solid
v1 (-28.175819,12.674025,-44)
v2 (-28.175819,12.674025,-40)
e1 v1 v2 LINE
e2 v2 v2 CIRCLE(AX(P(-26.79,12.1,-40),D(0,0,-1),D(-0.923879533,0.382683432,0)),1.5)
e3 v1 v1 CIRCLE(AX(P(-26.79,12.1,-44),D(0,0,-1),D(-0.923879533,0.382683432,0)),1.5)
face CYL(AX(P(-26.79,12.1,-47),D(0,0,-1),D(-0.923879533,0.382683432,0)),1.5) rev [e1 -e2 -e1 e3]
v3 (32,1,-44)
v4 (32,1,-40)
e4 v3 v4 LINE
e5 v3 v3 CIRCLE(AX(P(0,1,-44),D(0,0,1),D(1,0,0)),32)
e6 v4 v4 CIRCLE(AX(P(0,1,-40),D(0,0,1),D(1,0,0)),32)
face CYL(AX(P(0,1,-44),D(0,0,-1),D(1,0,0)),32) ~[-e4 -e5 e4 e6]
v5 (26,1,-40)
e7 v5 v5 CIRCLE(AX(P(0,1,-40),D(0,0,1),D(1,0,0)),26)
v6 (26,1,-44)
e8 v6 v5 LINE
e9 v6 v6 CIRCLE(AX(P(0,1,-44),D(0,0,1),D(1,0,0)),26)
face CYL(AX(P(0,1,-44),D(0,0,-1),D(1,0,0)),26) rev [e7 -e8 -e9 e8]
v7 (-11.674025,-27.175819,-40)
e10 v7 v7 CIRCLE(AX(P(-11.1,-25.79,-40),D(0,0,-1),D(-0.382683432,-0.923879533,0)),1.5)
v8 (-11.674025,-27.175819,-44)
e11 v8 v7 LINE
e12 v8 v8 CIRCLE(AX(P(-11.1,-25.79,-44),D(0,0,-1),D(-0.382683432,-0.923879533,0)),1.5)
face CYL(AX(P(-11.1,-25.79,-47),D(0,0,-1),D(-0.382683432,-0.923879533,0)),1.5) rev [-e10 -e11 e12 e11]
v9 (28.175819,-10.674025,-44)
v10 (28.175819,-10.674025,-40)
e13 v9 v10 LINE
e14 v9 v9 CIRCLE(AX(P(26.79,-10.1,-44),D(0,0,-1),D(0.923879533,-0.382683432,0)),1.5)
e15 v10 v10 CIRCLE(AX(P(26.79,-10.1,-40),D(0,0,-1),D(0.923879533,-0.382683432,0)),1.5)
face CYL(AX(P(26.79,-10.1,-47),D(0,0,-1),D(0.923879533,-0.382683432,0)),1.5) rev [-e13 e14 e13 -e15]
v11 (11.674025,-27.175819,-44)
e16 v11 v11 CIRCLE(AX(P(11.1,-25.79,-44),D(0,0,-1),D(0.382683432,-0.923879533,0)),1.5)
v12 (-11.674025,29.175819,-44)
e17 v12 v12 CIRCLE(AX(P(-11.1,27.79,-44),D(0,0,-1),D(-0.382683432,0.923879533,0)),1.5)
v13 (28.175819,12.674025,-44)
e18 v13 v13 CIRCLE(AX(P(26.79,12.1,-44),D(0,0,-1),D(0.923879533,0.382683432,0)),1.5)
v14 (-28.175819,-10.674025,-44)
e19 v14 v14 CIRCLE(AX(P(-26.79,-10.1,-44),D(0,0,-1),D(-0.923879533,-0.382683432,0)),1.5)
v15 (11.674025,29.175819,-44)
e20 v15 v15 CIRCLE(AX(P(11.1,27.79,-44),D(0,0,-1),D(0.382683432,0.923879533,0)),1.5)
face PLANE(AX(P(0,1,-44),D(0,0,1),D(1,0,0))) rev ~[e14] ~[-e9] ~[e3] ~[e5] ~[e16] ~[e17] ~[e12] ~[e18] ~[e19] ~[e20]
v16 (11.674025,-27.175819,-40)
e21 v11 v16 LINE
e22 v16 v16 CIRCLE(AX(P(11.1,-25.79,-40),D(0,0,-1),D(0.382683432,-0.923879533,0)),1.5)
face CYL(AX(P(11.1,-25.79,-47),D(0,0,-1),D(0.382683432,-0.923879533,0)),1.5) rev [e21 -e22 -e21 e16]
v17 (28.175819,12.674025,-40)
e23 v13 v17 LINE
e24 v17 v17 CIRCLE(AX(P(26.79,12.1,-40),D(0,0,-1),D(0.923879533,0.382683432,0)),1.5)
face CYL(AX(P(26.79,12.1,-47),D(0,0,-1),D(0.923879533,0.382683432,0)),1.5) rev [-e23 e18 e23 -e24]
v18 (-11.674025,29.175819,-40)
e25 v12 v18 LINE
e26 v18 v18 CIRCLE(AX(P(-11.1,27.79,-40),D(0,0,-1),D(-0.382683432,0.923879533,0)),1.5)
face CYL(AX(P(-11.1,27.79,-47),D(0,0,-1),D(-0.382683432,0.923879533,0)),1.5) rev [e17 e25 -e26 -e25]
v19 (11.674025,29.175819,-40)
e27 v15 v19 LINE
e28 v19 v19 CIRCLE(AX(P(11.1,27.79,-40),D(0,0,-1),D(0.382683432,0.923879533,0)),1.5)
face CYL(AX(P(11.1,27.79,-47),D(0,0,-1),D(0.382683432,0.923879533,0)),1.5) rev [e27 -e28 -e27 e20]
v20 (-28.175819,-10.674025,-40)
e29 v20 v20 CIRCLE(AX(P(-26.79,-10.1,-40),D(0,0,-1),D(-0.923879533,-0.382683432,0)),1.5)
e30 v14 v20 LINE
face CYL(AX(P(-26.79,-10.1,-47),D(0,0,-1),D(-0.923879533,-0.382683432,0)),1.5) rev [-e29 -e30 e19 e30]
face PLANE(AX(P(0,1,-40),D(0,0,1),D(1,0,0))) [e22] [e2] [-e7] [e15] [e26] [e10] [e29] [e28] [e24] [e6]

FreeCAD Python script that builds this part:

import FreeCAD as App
import Part
import Sketcher
from FreeCAD import Vector

doc = App.newDocument("Part")
body = doc.addObject("PartDesign::Body", "Body")

# Sketch on XY plane
sketch1 = body.newObject("Sketcher::SketchObject", "Sketch")
sketch1.AttachmentSupport = (doc.getObject("XY_Plane"), [""])
sketch1.MapMode = "FlatFace"
sketch1.addGeometry(Part.Circle(Vector(0, 0, 0), Vector(0, 0, 1), 3), False)
sketch1.addConstraint([
    Sketcher.Constraint("Coincident", 0, 3, -1, 1),
    Sketcher.Constraint("Diameter", 0, 6.0),
])
pad1 = body.newObject("PartDesign::Pad", "Pad")
pad1.Profile = sketch1
pad1.Length = 3
body2 = doc.addObject("PartDesign::Body", "Body001")
doc.recompute()

body.Placement = App.Placement(Vector(11.1, 26.79, -50), App.Rotation(Vector(0, 0, 1), 67.5))
boolean = body2.newObject("PartDesign::Boolean", "Boolean")
boolean.Type = "Fuse"
boolean.addObjects([body])
body3 = doc.addObject("PartDesign::Body", "Body002")

# Sketch on XY plane
sketch2 = body3.newObject("Sketcher::SketchObject", "Sketch001")
sketch2.AttachmentSupport = (doc.getObject("XY_Plane002"), [""])
sketch2.MapMode = "FlatFace"
sketch2.addGeometry(Part.Circle(Vector(0, 0, 0), Vector(0, 0, 1), 3), False)
sketch2.addConstraint([
    Sketcher.Constraint("Coincident", 0, 3, -1, 1),
    Sketcher.Constraint("Diameter", 0, 6.0),
])
pad2 = body3.newObject("PartDesign::Pad", "Pad001")
pad2.Profile = sketch2
pad2.Length = 3
body4 = doc.addObject("PartDesign::Body", "Body003")
doc.recompute()

body3.Placement = App.Placement(Vector(-11.1, 26.79, -50), App.Rotation(Vector(0, 0, 1), 112.5))
boolean2 = body4.newObject("PartDesign::Boolean", "Boolean001")
boolean2.Type = "Fuse"
boolean2.addObjects([body3])
body5 = doc.addObject("PartDesign::Body", "Body004")

# Sketch on XY plane
sketch3 = body5.newObject("Sketcher::SketchObject", "Sketch002")
sketch3.AttachmentSupport = (doc.getObject("XY_Plane004"), [""])
sketch3.MapMode = "FlatFace"
sketch3.addGeometry(Part.Circle(Vector(0, 0, 0), Vector(0, 0, 1), 3), False)
sketch3.addConstraint([
    Sketcher.Constraint("Coincident", 0, 3, -1, 1),
    Sketcher.Constraint("Diameter", 0, 6.0),
])
pad3 = body5.newObject("PartDesign::Pad", "Pad002")
pad3.Profile = sketch3
pad3.Length = 3
body6 = doc.addObject("PartDesign::Body", "Body005")
doc.recompute()

body5.Placement = App.Placement(Vector(-26.79, 11.1, -50), App.Rotation(Vector(0, 0, 1), 157.5))
boolean3 = body6.newObject("PartDesign::Boolean", "Boolean002")
boolean3.Type = "Fuse"
boolean3.addObjects([body5])
body7 = doc.addObject("PartDesign::Body", "Body006")

# Sketch on XY plane
sketch4 = body7.newObject("Sketcher::SketchObject", "Sketch003")
sketch4.AttachmentSupport = (doc.getObject("XY_Plane006"), [""])
sketch4.MapMode = "FlatFace"
sketch4.addGeometry(Part.Circle(Vector(0, 0, 0), Vector(0, 0, 1), 3), False)
sketch4.addConstraint([
    Sketcher.Constraint("Coincident", 0, 3, -1, 1),
    Sketcher.Constraint("Diameter", 0, 6.0),
])
pad4 = body7.newObject("PartDesign::Pad", "Pad003")
pad4.Profile = sketch4
pad4.Length = 3
body8 = doc.addObject("PartDesign::Body", "Body007")
doc.recompute()

body7.Placement = App.Placement(Vector(-26.79, -11.1, -50), App.Rotation(Vector(0, 0, 1), 202.5))
boolean4 = body8.newObject("PartDesign::Boolean", "Boolean003")
boolean4.Type = "Fuse"
boolean4.addObjects([body7])
body9 = doc.addObject("PartDesign::Body", "Body008")

# Sketch on XY plane
sketch5 = body9.newObject("Sketcher::SketchObject", "Sketch004")
sketch5.AttachmentSupport = (doc.getObject("XY_Plane008"), [""])
sketch5.MapMode = "FlatFace"
sketch5.addGeometry(Part.Circle(Vector(0, 0, 0), Vector(0, 0, 1), 3), False)
sketch5.addConstraint([
    Sketcher.Constraint("Coincident", 0, 3, -1, 1),
    Sketcher.Constraint("Diameter", 0, 6.0),
])
pad5 = body9.newObject("PartDesign::Pad", "Pad004")
pad5.Profile = sketch5
pad5.Length = 3
body10 = doc.addObject("PartDesign::Body", "Body009")
doc.recompute()

body9.Placement = App.Placement(Vector(-11.1, -26.79, -50), App.Rotation(Vector(0, 0, -1), 112.5))
boolean5 = body10.newObject("PartDesign::Boolean", "Boolean004")
boolean5.Type = "Fuse"
boolean5.addObjects([body9])
body11 = doc.addObject("PartDesign::Body", "Body010")

# Sketch on XY plane
sketch6 = body11.newObject("Sketcher::SketchObject", "Sketch005")
sketch6.AttachmentSupport = (doc.getObject("XY_Plane010"), [""])
sketch6.MapMode = "FlatFace"
sketch6.addGeometry(Part.Circle(Vector(0, 0, 0), Vector(0, 0, 1), 3), False)
sketch6.addConstraint([
    Sketcher.Constraint("Coincident", 0, 3, -1, 1),
    Sketcher.Constraint("Diameter", 0, 6.0),
])
pad6 = body11.newObject("PartDesign::Pad", "Pad005")
pad6.Profile = sketch6
pad6.Length = 3
body12 = doc.addObject("PartDesign::Body", "Body011")
doc.recompute()

body11.Placement = App.Placement(Vector(11.1, -26.79, -50), App.Rotation(Vector(0, 0, -1), 67.5))
boolean6 = body12.newObject("PartDesign::Boolean", "Boolean005")
boolean6.Type = "Fuse"
boolean6.addObjects([body11])
body13 = doc.addObject("PartDesign::Body", "Body012")

# Sketch on XY plane
sketch7 = body13.newObject("Sketcher::SketchObject", "Sketch006")
sketch7.AttachmentSupport = (doc.getObject("XY_Plane012"), [""])
sketch7.MapMode = "FlatFace"
sketch7.addGeometry(Part.Circle(Vector(0, 0, 0), Vector(0, 0, 1), 3), False)
sketch7.addConstraint([
    Sketcher.Constraint("Coincident", 0, 3, -1, 1),
    Sketcher.Constraint("Diameter", 0, 6.0),
])
pad7 = body13.newObject("PartDesign::Pad", "Pad006")
pad7.Profile = sketch7
pad7.Length = 3
body14 = doc.addObject("PartDesign::Body", "Body013")
doc.recompute()

body13.Placement = App.Placement(Vector(26.79, -11.1, -50), App.Rotation(Vector(0, 0, -1), 22.5))
boolean7 = body14.newObject("PartDesign::Boolean", "Boolean006")
boolean7.Type = "Fuse"
boolean7.addObjects([body13])
body15 = doc.addObject("PartDesign::Body", "Body014")

# Sketch on XY plane
sketch8 = body15.newObject("Sketcher::SketchObject", "Sketch007")
sketch8.AttachmentSupport = (doc.getObject("XY_Plane014"), [""])
sketch8.MapMode = "FlatFace"
sketch8.addGeometry(Part.Circle(Vector(0, 0, 0), Vector(0, 0, 1), 3), False)
sketch8.addConstraint([
    Sketcher.Constraint("Coincident", 0, 3, -1, 1),
    Sketcher.Constraint("Diameter", 0, 6.0),
])
pad8 = body15.newObject("PartDesign::Pad", "Pad007")
pad8.Profile = sketch8
pad8.Length = 3
body16 = doc.addObject("PartDesign::Body", "Body015")
body16.AllowCompound = True
doc.recompute()

body15.Placement = App.Placement(Vector(26.79, 11.1, -50), App.Rotation(Vector(0, 0, 1), 22.5))
boolean8 = body16.newObject("PartDesign::Boolean", "Boolean007")
boolean8.Type = "Fuse"
boolean8.addObjects([body15])
doc.recompute()

boolean9 = body16.newObject("PartDesign::Boolean", "Boolean008")
boolean9.Type = "Fuse"
boolean9.addObjects([body2])
doc.recompute()

boolean10 = body16.newObject("PartDesign::Boolean", "Boolean009")
boolean10.Type = "Fuse"
boolean10.addObjects([body4])
doc.recompute()

boolean11 = body16.newObject("PartDesign::Boolean", "Boolean010")
boolean11.Type = "Fuse"
boolean11.addObjects([body6])
doc.recompute()

boolean12 = body16.newObject("PartDesign::Boolean", "Boolean011")
boolean12.Type = "Fuse"
boolean12.addObjects([body8])
doc.recompute()

boolean13 = body16.newObject("PartDesign::Boolean", "Boolean012")
boolean13.Type = "Fuse"
boolean13.addObjects([body10])
doc.recompute()

boolean14 = body16.newObject("PartDesign::Boolean", "Boolean013")
boolean14.Type = "Fuse"
boolean14.addObjects([body12])
doc.recompute()

boolean15 = body16.newObject("PartDesign::Boolean", "Boolean014")
boolean15.Type = "Fuse"
boolean15.addObjects([body14])
body17 = doc.addObject("PartDesign::Body", "Body016")

# Sketch on XY plane
sketch9 = body17.newObject("Sketcher::SketchObject", "Sketch008")
sketch9.AttachmentSupport = (doc.getObject("XY_Plane016"), [""])
sketch9.MapMode = "FlatFace"
sketch9.addGeometry(Part.Circle(Vector(0, 0, 0), Vector(0, 0, 1), 1.5), False)
sketch9.addConstraint([
    Sketcher.Constraint("Coincident", 0, 3, -1, 1),
    Sketcher.Constraint("Diameter", 0, 3.0),
])
pad9 = body17.newObject("PartDesign::Pad", "Pad008")
pad9.Profile = sketch9
pad9.Length = 20
body18 = doc.addObject("PartDesign::Body", "Body017")
doc.recompute()

body17.Placement = App.Placement(Vector(11.1, 26.79, -50), App.Rotation(Vector(0, 0, 1), 67.5))
boolean16 = body18.newObject("PartDesign::Boolean", "Boolean015")
boolean16.Type = "Fuse"
boolean16.addObjects([body17])
body19 = doc.addObject("PartDesign::Body", "Body018")

# Sketch on XY plane
sketch10 = body19.newObject("Sketcher::SketchObject", "Sketch009")
sketch10.AttachmentSupport = (doc.getObject("XY_Plane018"), [""])
sketch10.MapMode = "FlatFace"
sketch10.addGeometry(Part.Circle(Vector(0, 0, 0), Vector(0, 0, 1), 1.5), False)
sketch10.addConstraint([
    Sketcher.Constraint("Coincident", 0, 3, -1, 1),
    Sketcher.Constraint("Diameter", 0, 3.0),
])
pad10 = body19.newObject("PartDesign::Pad", "Pad009")
pad10.Profile = sketch10
pad10.Length = 20
body20 = doc.addObject("PartDesign::Body", "Body019")
doc.recompute()

body19.Placement = App.Placement(Vector(-11.1, 26.79, -50), App.Rotation(Vector(0, 0, 1), 112.5))
boolean17 = body20.newObject("PartDesign::Boolean", "Boolean016")
boolean17.Type = "Fuse"
boolean17.addObjects([body19])
body21 = doc.addObject("PartDesign::Body", "Body020")

# Sketch on XY plane
sketch11 = body21.newObject("Sketcher::SketchObject", "Sketch010")
sketch11.AttachmentSupport = (doc.getObject("XY_Plane020"), [""])
sketch11.MapMode = "FlatFace"
sketch11.addGeometry(Part.Circle(Vector(0, 0, 0), Vector(0, 0, 1), 1.5), False)
sketch11.addConstraint([
    Sketcher.Constraint("Coincident", 0, 3, -1, 1),
    Sketcher.Constraint("Diameter", 0, 3.0),
])
pad11 = body21.newObject("PartDesign::Pad", "Pad010")
pad11.Profile = sketch11
pad11.Length = 20
body22 = doc.addObject("PartDesign::Body", "Body021")
doc.recompute()

body21.Placement = App.Placement(Vector(-26.79, 11.1, -50), App.Rotation(Vector(0, 0, 1), 157.5))
boolean18 = body22.newObject("PartDesign::Boolean", "Boolean017")
boolean18.Type = "Fuse"
boolean18.addObjects([body21])
body23 = doc.addObject("PartDesign::Body", "Body022")

# Sketch on XY plane
sketch12 = body23.newObject("Sketcher::SketchObject", "Sketch011")
sketch12.AttachmentSupport = (doc.getObject("XY_Plane022"), [""])
sketch12.MapMode = "FlatFace"
sketch12.addGeometry(Part.Circle(Vector(0, 0, 0), Vector(0, 0, 1), 1.5), False)
sketch12.addConstraint([
    Sketcher.Constraint("Coincident", 0, 3, -1, 1),
    Sketcher.Constraint("Diameter", 0, 3.0),
])
pad12 = body23.newObject("PartDesign::Pad", "Pad011")
pad12.Profile = sketch12
pad12.Length = 20
body24 = doc.addObject("PartDesign::Body", "Body023")
doc.recompute()

body23.Placement = App.Placement(Vector(-26.79, -11.1, -50), App.Rotation(Vector(0, 0, 1), 202.5))
boolean19 = body24.newObject("PartDesign::Boolean", "Boolean018")
boolean19.Type = "Fuse"
boolean19.addObjects([body23])
body25 = doc.addObject("PartDesign::Body", "Body024")

# Sketch on XY plane
sketch13 = body25.newObject("Sketcher::SketchObject", "Sketch012")
sketch13.AttachmentSupport = (doc.getObject("XY_Plane024"), [""])
sketch13.MapMode = "FlatFace"
sketch13.addGeometry(Part.Circle(Vector(0, 0, 0), Vector(0, 0, 1), 1.5), False)
sketch13.addConstraint([
    Sketcher.Constraint("Coincident", 0, 3, -1, 1),
    Sketcher.Constraint("Diameter", 0, 3.0),
])
pad13 = body25.newObject("PartDesign::Pad", "Pad012")
pad13.Profile = sketch13
pad13.Length = 20
body26 = doc.addObject("PartDesign::Body", "Body025")
doc.recompute()

body25.Placement = App.Placement(Vector(-11.1, -26.79, -50), App.Rotation(Vector(0, 0, -1), 112.5))
boolean20 = body26.newObject("PartDesign::Boolean", "Boolean019")
boolean20.Type = "Fuse"
boolean20.addObjects([body25])
body27 = doc.addObject("PartDesign::Body", "Body026")

# Sketch on XY plane
sketch14 = body27.newObject("Sketcher::SketchObject", "Sketch013")
sketch14.AttachmentSupport = (doc.getObject("XY_Plane026"), [""])
sketch14.MapMode = "FlatFace"
sketch14.addGeometry(Part.Circle(Vector(0, 0, 0), Vector(0, 0, 1), 1.5), False)
sketch14.addConstraint([
    Sketcher.Constraint("Coincident", 0, 3, -1, 1),
    Sketcher.Constraint("Diameter", 0, 3.0),
])
pad14 = body27.newObject("PartDesign::Pad", "Pad013")
pad14.Profile = sketch14
pad14.Length = 20
body28 = doc.addObject("PartDesign::Body", "Body027")
doc.recompute()

body27.Placement = App.Placement(Vector(11.1, -26.79, -50), App.Rotation(Vector(0, 0, -1), 67.5))
boolean21 = body28.newObject("PartDesign::Boolean", "Boolean020")
boolean21.Type = "Fuse"
boolean21.addObjects([body27])
body29 = doc.addObject("PartDesign::Body", "Body028")

# Sketch on XY plane
sketch15 = body29.newObject("Sketcher::SketchObject", "Sketch014")
sketch15.AttachmentSupport = (doc.getObject("XY_Plane028"), [""])
sketch15.MapMode = "FlatFace"
sketch15.addGeometry(Part.Circle(Vector(0, 0, 0), Vector(0, 0, 1), 1.5), False)
sketch15.addConstraint([
    Sketcher.Constraint("Coincident", 0, 3, -1, 1),
    Sketcher.Constraint("Diameter", 0, 3.0),
])
pad15 = body29.newObject("PartDesign::Pad", "Pad014")
pad15.Profile = sketch15
pad15.Length = 20
body30 = doc.addObject("PartDesign::Body", "Body029")
doc.recompute()

body29.Placement = App.Placement(Vector(26.79, -11.1, -50), App.Rotation(Vector(0, 0, -1), 22.5))
boolean22 = body30.newObject("PartDesign::Boolean", "Boolean021")
boolean22.Type = "Fuse"
boolean22.addObjects([body29])
body31 = doc.addObject("PartDesign::Body", "Body030")

# Sketch on XY plane
sketch16 = body31.newObject("Sketcher::SketchObject", "Sketch015")
sketch16.AttachmentSupport = (doc.getObject("XY_Plane030"), [""])
sketch16.MapMode = "FlatFace"
sketch16.addGeometry(Part.Circle(Vector(0, 0, 0), Vector(0, 0, 1), 1.5), False)
sketch16.addConstraint([
    Sketcher.Constraint("Coincident", 0, 3, -1, 1),
    Sketcher.Constraint("Diameter", 0, 3.0),
])
pad16 = body31.newObject("PartDesign::Pad", "Pad015")
pad16.Profile = sketch16
pad16.Length = 20
body32 = doc.addObject("PartDesign::Body", "Body031")
body32.AllowCompound = True
doc.recompute()

body31.Placement = App.Placement(Vector(26.79, 11.1, -50), App.Rotation(Vector(0, 0, 1), 22.5))
boolean23 = body32.newObject("PartDesign::Boolean", "Boolean022")
boolean23.Type = "Fuse"
boolean23.addObjects([body31])
doc.recompute()

boolean24 = body32.newObject("PartDesign::Boolean", "Boolean023")
boolean24.Type = "Fuse"
boolean24.addObjects([body18])
doc.recompute()

boolean25 = body32.newObject("PartDesign::Boolean", "Boolean024")
boolean25.Type = "Fuse"
boolean25.addObjects([body20])
doc.recompute()

boolean26 = body32.newObject("PartDesign::Boolean", "Boolean025")
boolean26.Type = "Fuse"
boolean26.addObjects([body22])
doc.recompute()

boolean27 = body32.newObject("PartDesign::Boolean", "Boolean026")
boolean27.Type = "Fuse"
boolean27.addObjects([body24])
doc.recompute()

boolean28 = body32.newObject("PartDesign::Boolean", "Boolean027")
boolean28.Type = "Fuse"
boolean28.addObjects([body26])
doc.recompute()

boolean29 = body32.newObject("PartDesign::Boolean", "Boolean028")
boolean29.Type = "Fuse"
boolean29.addObjects([body28])
doc.recompute()

boolean30 = body32.newObject("PartDesign::Boolean", "Boolean029")
boolean30.Type = "Fuse"
boolean30.addObjects([body30])
body33 = doc.addObject("PartDesign::Body", "Body032")

# Sketch on XY plane
sketch17 = body33.newObject("Sketcher::SketchObject", "Sketch016")
sketch17.AttachmentSupport = (doc.getObject("XY_Plane032"), [""])
sketch17.MapMode = "FlatFace"
sketch17.AttachmentOffset = App.Placement(Vector(0, 0, -47), App.Rotation())
sketch17.addGeometry([
    Part.Circle(Vector(0, 0, 0), Vector(0, 0, 1), 32),
    Part.Circle(Vector(0, 0, 0), Vector(0, 0, 1), 26),
], False)
sketch17.addConstraint([
    Sketcher.Constraint("Coincident", 0, 3, -1, 1),
    Sketcher.Constraint("Coincident", 1, 3, -1, 1),
    Sketcher.Constraint("Diameter", 0, 64.0),
    Sketcher.Constraint("Diameter", 1, 52.0),
])
pad17 = body33.newObject("PartDesign::Pad", "Pad016")
pad17.Profile = sketch17
pad17.Length = 4
doc.recompute()

boolean31 = body33.newObject("PartDesign::Boolean", "Boolean030")
boolean31.Type = "Cut"
boolean31.addObjects([body32])
body34 = doc.addObject("PartDesign::Body", "Body033")
doc.recompute()

body33.Placement = App.Placement(Vector(0, 0, 2), App.Rotation(Vector(0, 0, 1), 0))
boolean32 = body34.newObject("PartDesign::Boolean", "Boolean031")
boolean32.Type = "Fuse"
boolean32.addObjects([body33])
doc.recompute()

boolean33 = body34.newObject("PartDesign::Boolean", "Boolean032")
boolean33.Type = "Cut"
boolean33.addObjects([body16])
body35 = doc.addObject("PartDesign::Body", "Body034")
doc.recompute()

body34.Placement = App.Placement(Vector(0, 1, 1), App.Rotation(Vector(0, 0, 1), 0))
boolean34 = body35.newObject("PartDesign::Boolean", "Boolean033")
boolean34.Type = "Fuse"
boolean34.addObjects([body34])

doc.recompute()
